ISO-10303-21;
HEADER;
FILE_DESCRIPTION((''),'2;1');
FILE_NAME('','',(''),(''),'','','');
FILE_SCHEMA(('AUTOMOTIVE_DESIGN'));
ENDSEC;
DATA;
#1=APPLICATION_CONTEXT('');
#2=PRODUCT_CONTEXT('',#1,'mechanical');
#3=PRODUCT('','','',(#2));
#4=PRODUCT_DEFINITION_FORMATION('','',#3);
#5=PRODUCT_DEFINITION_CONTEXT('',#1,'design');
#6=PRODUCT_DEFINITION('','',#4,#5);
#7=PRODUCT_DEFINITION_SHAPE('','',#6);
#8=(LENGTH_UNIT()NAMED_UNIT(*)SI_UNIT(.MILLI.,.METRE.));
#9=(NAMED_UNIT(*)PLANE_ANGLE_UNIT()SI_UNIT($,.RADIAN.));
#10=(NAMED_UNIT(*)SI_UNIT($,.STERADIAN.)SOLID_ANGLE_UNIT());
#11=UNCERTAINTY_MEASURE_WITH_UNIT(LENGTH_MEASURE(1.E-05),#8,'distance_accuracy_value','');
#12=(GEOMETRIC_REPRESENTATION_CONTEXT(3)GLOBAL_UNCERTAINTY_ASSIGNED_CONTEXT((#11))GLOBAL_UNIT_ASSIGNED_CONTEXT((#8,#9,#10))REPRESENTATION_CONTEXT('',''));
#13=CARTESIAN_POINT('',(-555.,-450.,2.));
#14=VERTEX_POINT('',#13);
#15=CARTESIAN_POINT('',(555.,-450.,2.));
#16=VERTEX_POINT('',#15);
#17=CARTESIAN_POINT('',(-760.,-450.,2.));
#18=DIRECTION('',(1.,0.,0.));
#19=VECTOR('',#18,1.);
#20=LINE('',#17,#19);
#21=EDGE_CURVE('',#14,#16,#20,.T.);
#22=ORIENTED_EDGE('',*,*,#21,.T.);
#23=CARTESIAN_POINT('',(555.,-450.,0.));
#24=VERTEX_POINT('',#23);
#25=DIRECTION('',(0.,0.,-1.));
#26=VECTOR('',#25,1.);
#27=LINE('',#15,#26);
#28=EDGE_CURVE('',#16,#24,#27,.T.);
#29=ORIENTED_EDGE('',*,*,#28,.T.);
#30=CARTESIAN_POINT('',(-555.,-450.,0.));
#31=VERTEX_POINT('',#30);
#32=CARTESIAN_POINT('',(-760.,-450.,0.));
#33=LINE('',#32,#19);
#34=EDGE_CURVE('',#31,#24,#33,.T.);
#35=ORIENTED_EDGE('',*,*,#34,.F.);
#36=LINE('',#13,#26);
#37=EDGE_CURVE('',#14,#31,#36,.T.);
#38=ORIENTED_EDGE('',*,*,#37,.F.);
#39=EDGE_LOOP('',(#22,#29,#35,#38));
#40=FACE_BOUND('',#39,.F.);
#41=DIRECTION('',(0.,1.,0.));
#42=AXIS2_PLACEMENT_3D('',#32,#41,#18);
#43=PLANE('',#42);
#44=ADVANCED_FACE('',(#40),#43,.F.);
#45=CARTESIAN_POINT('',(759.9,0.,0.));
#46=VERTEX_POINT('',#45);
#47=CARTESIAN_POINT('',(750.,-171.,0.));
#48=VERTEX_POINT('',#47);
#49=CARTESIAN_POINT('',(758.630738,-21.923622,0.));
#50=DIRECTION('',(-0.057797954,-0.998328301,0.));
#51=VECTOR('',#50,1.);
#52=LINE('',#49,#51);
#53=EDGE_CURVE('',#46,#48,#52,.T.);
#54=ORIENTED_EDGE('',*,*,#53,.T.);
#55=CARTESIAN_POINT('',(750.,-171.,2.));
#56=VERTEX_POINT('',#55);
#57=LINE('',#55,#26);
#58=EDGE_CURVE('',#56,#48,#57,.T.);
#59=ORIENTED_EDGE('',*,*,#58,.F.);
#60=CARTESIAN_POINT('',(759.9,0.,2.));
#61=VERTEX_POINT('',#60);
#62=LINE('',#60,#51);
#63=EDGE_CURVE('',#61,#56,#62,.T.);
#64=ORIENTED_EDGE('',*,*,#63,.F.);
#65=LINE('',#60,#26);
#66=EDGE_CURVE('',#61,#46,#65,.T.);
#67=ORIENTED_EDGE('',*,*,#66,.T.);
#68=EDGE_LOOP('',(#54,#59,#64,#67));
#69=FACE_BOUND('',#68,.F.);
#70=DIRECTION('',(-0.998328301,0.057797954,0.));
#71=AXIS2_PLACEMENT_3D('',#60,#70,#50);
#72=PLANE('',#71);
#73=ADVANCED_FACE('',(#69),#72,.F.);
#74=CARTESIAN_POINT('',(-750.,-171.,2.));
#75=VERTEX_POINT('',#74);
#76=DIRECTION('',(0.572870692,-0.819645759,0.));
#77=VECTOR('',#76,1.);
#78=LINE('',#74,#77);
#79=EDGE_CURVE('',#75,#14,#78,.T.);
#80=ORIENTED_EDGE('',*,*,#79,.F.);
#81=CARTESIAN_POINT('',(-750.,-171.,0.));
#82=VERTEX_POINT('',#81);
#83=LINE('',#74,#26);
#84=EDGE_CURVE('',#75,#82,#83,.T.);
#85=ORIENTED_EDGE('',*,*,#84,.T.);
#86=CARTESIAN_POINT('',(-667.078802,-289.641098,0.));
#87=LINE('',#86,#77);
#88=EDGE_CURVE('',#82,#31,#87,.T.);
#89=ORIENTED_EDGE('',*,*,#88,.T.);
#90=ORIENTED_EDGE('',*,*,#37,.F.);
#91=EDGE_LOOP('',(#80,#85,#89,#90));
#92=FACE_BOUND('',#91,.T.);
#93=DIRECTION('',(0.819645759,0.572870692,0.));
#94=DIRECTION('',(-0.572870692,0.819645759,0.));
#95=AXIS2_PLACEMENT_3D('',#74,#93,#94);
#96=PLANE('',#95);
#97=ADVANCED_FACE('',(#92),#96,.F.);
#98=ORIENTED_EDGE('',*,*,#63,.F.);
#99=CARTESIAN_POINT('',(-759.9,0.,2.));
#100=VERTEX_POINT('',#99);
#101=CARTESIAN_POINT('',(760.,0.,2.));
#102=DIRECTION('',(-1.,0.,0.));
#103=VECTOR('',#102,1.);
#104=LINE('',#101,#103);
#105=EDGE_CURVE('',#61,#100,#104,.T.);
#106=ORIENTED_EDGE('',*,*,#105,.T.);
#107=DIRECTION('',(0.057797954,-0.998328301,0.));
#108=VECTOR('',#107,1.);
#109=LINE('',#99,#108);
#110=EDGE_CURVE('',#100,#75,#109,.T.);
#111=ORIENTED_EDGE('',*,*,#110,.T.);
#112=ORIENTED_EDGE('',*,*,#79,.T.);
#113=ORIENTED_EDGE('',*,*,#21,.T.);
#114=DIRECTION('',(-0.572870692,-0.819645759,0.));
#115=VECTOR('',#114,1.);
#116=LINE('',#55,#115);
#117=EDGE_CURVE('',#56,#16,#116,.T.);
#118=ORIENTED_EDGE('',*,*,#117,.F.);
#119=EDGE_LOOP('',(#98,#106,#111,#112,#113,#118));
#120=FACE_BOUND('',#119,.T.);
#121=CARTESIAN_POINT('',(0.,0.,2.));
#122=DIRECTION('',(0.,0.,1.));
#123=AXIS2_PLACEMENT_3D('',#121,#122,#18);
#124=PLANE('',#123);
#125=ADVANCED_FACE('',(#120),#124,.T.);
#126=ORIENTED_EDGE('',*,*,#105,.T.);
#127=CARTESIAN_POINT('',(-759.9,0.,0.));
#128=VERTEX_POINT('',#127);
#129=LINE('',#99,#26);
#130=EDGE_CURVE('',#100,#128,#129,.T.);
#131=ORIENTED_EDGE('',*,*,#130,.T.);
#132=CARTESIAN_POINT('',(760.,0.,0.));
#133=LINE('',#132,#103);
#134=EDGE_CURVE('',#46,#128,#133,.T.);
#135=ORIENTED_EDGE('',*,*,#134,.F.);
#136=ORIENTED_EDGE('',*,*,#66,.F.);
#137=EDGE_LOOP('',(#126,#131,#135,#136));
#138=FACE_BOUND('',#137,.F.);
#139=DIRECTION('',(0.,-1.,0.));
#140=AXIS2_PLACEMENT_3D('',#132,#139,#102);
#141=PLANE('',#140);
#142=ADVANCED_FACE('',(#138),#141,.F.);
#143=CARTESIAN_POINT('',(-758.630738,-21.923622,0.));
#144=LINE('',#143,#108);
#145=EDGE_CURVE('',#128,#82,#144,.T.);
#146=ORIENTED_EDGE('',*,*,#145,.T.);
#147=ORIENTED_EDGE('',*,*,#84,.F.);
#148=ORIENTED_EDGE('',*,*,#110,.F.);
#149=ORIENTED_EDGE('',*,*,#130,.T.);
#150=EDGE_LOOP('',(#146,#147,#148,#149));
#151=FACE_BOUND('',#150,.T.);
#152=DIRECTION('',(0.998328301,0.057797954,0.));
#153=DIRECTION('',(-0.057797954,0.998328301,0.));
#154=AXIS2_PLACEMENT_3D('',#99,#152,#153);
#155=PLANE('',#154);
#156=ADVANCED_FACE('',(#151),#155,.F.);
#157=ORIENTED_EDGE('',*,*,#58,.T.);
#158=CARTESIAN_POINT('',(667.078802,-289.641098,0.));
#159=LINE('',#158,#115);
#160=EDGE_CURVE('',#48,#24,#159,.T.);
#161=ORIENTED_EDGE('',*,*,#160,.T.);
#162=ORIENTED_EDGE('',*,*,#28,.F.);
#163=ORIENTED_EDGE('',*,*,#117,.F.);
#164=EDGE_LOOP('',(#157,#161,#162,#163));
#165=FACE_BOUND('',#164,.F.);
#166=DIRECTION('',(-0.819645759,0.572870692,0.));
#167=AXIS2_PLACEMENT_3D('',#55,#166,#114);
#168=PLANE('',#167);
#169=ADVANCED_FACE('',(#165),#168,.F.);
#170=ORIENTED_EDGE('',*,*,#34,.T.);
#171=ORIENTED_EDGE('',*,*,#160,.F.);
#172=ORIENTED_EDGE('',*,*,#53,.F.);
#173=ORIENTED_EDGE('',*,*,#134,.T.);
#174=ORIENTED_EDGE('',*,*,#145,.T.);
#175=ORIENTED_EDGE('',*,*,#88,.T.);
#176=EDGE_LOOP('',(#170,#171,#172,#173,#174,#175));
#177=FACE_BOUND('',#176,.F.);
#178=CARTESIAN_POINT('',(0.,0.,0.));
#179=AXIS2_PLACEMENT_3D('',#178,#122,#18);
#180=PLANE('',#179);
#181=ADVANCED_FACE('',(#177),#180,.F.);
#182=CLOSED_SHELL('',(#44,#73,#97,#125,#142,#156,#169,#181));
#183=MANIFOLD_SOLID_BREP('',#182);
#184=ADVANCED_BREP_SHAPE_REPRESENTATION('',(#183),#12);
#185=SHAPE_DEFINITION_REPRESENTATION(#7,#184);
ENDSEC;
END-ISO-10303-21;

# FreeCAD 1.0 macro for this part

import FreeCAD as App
import Part
import Sketcher
from FreeCAD import Vector

doc = App.newDocument("Part")
body = doc.addObject("PartDesign::Body", "Body")

# Sketch on XY plane
sketch1 = doc.addObject("Sketcher::SketchObject", "Sketch")
body.addObject(sketch1)
sketch1.AttachmentSupport = (doc.XY_Plane, [""])
sketch1.MapMode = "FlatFace"
sketch1.addGeometry(Part.LineSegment(Vector(-760, 0, 0), Vector(-760, -450, 0)), False)
sketch1.addGeometry(Part.LineSegment(Vector(-760, -450, 0), Vector(760, -450, 0)), False)
sketch1.addGeometry(Part.LineSegment(Vector(760, -450, 0), Vector(760, 0, 0)), False)
sketch1.addGeometry(Part.LineSegment(Vector(760, 0, 0), Vector(-760, 0, 0)), False)
sketch1.addConstraint(Sketcher.Constraint("Coincident", 0, 2, 1, 1))
sketch1.addConstraint(Sketcher.Constraint("Coincident", 1, 2, 2, 1))
sketch1.addConstraint(Sketcher.Constraint("Coincident", 2, 2, 3, 1))
sketch1.addConstraint(Sketcher.Constraint("Coincident", 3, 2, 0, 1))
sketch1.addConstraint(Sketcher.Constraint("Vertical", 0))
sketch1.addConstraint(Sketcher.Constraint("Horizontal", 1))
sketch1.addConstraint(Sketcher.Constraint("Vertical", 2))
sketch1.addConstraint(Sketcher.Constraint("Horizontal", 3))
sketch1.addConstraint(Sketcher.Constraint("Symmetric", 2, 2, 3, 2, -1, 1))
sketch1.addConstraint(Sketcher.Constraint("DistanceX", 1, 1, 1, 2, 1520.0))
sketch1.addConstraint(Sketcher.Constraint("DistanceY", 0, 2, 0, 1, 450.0))
pad1 = doc.addObject("PartDesign::Pad", "Pad")
body.addObject(pad1)
pad1.Profile = sketch1
pad1.Length = 2

# Sketch on XY plane
sketch2 = doc.addObject("Sketcher::SketchObject", "Sketch001")
body.addObject(sketch2)
sketch2.AttachmentSupport = (doc.XY_Plane, [""])
sketch2.MapMode = "FlatFace"
sketch2.AttachmentOffset = App.Placement(Vector(0, 0, 2), App.Rotation())
sketch2.addGeometry(Part.LineSegment(Vector(555, -450, 0), Vector(760, -450, 0)), False)
sketch2.addGeometry(Part.LineSegment(Vector(760, -450, 0), Vector(760, 0, 0)), False)
sketch2.addGeometry(Part.LineSegment(Vector(760, 0, 0), Vector(759.9, 0, 0)), False)
sketch2.addGeometry(Part.LineSegment(Vector(759.9, 0, 0), Vector(750, -171, 0)), False)
sketch2.addGeometry(Part.LineSegment(Vector(750, -171, 0), Vector(555, -450, 0)), False)
sketch2.addConstraint(Sketcher.Constraint("Coincident", 0, 2, 1, 1))
sketch2.addConstraint(Sketcher.Constraint("Coincident", 1, 2, 2, 1))
sketch2.addConstraint(Sketcher.Constraint("Coincident", 2, 2, 3, 1))
sketch2.addConstraint(Sketcher.Constraint("Coincident", 3, 2, 4, 1))
sketch2.addConstraint(Sketcher.Constraint("Coincident", 4, 2, 0, 1))
sketch2.addConstraint(Sketcher.Constraint("Horizontal", 0))
sketch2.addConstraint(Sketcher.Constraint("Vertical", 1))
sketch2.addConstraint(Sketcher.Constraint("Horizontal", 2))
sketch2.addConstraint(Sketcher.Constraint("PointOnObject", 1, 2, -1))
sketch2.addConstraint(Sketcher.Constraint("DistanceX", 0, 1, 0, 2, 205.0))
sketch2.addConstraint(Sketcher.Constraint("DistanceX", 2, 2, 2, 1, 0.1))
sketch2.addConstraint(Sketcher.Constraint("DistanceY", 3, 2, -1, 1, 171.0))
sketch2.addConstraint(Sketcher.Constraint("DistanceX", 3, 2, 1, 2, 10.0))
sketch2.addConstraint(Sketcher.Constraint("DistanceY", 1, 1, 1, 2, 450.0))
sketch2.addConstraint(Sketcher.Constraint("DistanceX", -1, 1, 0, 2, 760.0))
pocket1 = doc.addObject("PartDesign::Pocket", "Pocket")
body.addObject(pocket1)
pocket1.Profile = sketch2
pocket1.Type = "ThroughAll"
doc.recompute()

mirrored = doc.addObject("PartDesign::Mirrored", "Mirrored")
body.addObject(mirrored)
mirrored.Originals = [pocket1]
mirrored.MirrorPlane = (doc.YZ_Plane, [""])
body.Tip = mirrored

doc.recompute()
